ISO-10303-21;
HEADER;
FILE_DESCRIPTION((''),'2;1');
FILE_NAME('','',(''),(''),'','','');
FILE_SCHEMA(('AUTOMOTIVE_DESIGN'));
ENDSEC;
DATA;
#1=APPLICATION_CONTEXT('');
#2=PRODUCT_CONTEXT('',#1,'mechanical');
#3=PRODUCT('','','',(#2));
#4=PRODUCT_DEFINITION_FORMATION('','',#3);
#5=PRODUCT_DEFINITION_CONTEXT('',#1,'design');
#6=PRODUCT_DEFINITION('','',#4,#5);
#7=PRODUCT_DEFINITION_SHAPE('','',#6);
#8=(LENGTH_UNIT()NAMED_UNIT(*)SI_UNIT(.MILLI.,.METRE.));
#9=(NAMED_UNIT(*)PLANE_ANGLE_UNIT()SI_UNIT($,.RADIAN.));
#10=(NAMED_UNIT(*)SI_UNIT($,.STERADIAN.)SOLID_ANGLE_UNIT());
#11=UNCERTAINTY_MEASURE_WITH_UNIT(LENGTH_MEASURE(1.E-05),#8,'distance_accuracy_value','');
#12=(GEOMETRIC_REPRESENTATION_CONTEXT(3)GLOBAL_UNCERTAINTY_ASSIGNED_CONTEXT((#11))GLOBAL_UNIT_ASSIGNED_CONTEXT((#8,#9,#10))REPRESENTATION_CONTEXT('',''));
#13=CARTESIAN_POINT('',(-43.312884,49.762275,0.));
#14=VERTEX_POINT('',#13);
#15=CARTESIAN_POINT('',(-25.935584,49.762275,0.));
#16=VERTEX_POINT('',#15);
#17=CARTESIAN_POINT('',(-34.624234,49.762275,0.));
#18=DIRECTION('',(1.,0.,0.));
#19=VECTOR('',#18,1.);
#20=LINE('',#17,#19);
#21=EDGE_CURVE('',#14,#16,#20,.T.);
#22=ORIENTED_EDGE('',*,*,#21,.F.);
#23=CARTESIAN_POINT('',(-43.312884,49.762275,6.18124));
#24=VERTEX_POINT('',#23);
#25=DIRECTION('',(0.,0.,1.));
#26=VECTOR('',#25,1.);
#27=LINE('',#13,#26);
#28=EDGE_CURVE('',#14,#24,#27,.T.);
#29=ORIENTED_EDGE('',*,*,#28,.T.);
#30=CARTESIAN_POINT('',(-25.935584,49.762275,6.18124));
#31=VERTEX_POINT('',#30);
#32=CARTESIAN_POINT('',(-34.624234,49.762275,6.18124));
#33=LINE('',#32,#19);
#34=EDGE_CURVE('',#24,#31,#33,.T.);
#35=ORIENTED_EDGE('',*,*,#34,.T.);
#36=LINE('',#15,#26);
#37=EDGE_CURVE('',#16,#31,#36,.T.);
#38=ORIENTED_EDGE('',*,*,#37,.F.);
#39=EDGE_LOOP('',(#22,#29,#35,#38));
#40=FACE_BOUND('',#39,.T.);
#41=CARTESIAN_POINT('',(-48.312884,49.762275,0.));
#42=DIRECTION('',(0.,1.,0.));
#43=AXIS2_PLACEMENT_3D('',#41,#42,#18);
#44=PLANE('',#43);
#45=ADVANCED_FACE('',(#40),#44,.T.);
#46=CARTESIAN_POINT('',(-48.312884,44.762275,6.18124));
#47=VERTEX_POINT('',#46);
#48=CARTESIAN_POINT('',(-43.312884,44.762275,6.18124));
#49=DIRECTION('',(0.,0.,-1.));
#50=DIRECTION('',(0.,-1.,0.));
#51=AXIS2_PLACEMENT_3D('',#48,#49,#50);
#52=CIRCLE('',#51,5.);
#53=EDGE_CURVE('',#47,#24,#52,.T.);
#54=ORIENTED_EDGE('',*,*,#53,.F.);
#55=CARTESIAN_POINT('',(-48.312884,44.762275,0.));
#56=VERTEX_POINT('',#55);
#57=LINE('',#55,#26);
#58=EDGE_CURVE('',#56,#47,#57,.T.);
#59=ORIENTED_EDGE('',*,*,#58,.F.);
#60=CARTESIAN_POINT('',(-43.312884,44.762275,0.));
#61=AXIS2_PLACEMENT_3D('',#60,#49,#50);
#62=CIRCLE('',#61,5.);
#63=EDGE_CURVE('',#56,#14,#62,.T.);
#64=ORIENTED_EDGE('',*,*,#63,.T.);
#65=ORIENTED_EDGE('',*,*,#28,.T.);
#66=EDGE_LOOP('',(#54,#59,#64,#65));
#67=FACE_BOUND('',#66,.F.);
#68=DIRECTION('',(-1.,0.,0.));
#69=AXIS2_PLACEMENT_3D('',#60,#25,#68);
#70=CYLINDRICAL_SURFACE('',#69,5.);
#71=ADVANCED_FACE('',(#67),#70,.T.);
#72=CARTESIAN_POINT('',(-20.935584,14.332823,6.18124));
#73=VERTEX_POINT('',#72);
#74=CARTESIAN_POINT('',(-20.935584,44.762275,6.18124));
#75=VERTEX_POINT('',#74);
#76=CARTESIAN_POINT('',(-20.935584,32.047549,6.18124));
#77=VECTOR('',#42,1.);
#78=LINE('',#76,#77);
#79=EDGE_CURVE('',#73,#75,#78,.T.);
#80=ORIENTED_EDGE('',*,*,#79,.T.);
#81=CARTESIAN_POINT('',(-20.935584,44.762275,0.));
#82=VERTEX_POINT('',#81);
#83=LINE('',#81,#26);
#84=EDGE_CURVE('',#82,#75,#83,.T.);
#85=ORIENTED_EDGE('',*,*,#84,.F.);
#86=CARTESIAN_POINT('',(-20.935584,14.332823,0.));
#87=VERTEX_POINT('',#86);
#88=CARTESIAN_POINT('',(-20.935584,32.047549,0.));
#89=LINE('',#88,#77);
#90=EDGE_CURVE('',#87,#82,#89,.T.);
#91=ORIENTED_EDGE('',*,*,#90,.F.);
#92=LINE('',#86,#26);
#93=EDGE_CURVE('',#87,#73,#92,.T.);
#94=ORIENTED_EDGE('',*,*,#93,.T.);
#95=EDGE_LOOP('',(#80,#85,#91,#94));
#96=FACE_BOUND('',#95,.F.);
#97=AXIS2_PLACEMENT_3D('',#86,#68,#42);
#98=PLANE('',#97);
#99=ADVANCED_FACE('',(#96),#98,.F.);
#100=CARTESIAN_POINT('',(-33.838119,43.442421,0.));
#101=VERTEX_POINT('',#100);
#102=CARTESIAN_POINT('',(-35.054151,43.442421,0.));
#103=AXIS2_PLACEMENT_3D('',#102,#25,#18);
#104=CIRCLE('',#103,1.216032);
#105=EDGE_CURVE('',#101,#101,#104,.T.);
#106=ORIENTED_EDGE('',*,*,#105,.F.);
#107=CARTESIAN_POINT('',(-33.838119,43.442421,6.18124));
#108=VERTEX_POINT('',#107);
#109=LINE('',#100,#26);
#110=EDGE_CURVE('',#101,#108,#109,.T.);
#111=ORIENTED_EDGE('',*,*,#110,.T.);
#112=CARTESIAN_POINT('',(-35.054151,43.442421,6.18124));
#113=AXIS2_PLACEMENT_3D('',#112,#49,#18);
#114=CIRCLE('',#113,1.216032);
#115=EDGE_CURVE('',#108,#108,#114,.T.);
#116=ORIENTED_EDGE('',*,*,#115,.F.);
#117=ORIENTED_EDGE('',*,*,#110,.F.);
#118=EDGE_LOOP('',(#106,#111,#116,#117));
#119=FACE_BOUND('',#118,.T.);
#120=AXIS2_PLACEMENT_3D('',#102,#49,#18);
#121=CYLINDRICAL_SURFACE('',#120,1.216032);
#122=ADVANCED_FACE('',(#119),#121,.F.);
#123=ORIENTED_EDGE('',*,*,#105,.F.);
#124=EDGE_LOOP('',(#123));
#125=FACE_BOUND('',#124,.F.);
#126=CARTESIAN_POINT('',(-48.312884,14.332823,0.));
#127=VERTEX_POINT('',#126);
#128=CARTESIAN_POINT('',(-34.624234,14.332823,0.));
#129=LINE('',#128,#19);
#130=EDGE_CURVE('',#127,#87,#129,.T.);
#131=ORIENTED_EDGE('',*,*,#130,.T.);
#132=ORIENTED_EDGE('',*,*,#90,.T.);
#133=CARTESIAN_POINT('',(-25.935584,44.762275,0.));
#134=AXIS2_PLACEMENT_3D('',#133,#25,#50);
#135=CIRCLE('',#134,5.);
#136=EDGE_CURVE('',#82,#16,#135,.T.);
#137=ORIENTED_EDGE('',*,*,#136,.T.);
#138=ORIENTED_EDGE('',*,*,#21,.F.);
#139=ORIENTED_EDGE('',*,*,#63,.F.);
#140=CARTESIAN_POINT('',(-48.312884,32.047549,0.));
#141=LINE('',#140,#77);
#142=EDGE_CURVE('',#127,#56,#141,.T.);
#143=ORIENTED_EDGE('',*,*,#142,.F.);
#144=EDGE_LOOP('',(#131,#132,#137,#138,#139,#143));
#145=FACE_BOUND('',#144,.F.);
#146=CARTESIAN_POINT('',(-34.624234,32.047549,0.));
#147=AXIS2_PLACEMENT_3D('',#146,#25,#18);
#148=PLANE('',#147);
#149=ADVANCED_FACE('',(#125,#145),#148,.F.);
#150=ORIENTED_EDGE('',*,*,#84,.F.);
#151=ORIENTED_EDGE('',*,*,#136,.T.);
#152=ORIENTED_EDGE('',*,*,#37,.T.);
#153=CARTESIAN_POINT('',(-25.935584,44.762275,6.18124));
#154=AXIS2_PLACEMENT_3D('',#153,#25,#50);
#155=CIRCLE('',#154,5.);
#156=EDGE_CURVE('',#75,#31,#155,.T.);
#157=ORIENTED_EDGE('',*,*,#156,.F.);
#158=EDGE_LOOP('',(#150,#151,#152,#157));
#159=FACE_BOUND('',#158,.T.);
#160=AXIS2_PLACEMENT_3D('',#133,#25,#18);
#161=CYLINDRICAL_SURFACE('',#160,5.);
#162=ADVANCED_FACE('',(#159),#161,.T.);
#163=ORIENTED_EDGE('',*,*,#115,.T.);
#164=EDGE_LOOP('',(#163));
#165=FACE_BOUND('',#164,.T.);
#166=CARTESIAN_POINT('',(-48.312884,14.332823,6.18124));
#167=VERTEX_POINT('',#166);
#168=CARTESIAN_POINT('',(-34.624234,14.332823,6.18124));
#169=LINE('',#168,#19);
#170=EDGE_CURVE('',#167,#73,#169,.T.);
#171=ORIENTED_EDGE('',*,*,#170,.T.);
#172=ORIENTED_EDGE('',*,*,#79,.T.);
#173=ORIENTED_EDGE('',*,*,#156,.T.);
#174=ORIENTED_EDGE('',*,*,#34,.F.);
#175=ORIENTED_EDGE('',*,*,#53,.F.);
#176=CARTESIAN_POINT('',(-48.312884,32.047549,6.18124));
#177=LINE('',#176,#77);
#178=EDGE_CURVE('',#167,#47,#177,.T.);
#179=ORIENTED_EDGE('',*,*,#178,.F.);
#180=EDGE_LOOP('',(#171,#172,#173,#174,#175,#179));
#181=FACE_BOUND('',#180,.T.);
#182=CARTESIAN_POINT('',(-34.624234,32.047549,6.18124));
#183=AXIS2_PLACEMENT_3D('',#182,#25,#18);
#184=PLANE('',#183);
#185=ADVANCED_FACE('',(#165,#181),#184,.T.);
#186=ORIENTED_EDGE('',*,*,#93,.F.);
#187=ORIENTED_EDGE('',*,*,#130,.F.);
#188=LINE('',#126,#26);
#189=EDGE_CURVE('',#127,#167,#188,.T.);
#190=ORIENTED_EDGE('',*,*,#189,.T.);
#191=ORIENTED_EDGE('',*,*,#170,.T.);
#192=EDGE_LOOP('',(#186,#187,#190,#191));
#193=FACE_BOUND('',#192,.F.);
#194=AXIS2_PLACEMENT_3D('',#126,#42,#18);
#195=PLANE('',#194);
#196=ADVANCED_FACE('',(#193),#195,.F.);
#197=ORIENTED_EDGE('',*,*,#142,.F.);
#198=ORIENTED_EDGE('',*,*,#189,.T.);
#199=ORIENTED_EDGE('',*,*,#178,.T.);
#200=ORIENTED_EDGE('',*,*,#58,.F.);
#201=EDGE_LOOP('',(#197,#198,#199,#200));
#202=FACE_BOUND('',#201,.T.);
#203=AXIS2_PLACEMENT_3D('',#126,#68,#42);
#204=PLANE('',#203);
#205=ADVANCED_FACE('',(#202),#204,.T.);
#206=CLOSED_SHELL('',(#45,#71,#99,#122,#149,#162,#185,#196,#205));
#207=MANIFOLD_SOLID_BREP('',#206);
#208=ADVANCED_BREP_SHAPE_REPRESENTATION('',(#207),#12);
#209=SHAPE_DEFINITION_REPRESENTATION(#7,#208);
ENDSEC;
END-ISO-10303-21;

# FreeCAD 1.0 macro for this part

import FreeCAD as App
import Part
import Sketcher
Q = App.Units.Quantity


def edges_at(feature, points):
    """Names of the edges that pass closest to the given points."""
    edges = feature.Shape.Edges
    near = lambda p: min(range(len(edges)), key=lambda i: edges[i].distToShape(Part.Vertex(*p))[0])
    return sorted({f"Edge{near(p) + 1}" for p in points})

doc = App.newDocument("Part")
body = doc.addObject("PartDesign::Body", "Body")

sketch1 = body.newObject("Sketcher::SketchObject", "Sketch")
sketch1.AttachmentSupport = (doc.getObject("XY_Plane"), [""])
sketch1.MapMode = "FlatFace"
sketch1.addGeometry([
    Part.LineSegment(App.Vector(-48, 50, 0), App.Vector(-48, 14, 0)),
    Part.LineSegment(App.Vector(-48, 14, 0), App.Vector(-21, 14, 0)),
    Part.LineSegment(App.Vector(-21, 14, 0), App.Vector(-21, 50, 0)),
    Part.LineSegment(App.Vector(-21, 50, 0), App.Vector(-48, 50, 0)),
], False)
sketch1.addConstraint([
    Sketcher.Constraint("Coincident", 0, 2, 1, 1),
    Sketcher.Constraint("Coincident", 1, 2, 2, 1),
    Sketcher.Constraint("Coincident", 2, 2, 3, 1),
    Sketcher.Constraint("Coincident", 3, 2, 0, 1),
    Sketcher.Constraint("Vertical", 0),
    Sketcher.Constraint("Horizontal", 1),
    Sketcher.Constraint("Vertical", 2),
    Sketcher.Constraint("Horizontal", 3),
    Sketcher.Constraint("DistanceX", 1, 1, 1, 2, Q("27.3773 mm")),
    Sketcher.Constraint("DistanceY", 0, 2, 0, 1, Q("35.429452 mm")),
    Sketcher.Constraint("DistanceX", 0, 2, -1, 1, Q("48.312884 mm")),
    Sketcher.Constraint("DistanceY", -1, 1, 0, 2, Q("14.332823 mm")),
])
pad1 = body.newObject("PartDesign::Pad", "Pad")
pad1.Profile = sketch1
pad1.Length = 6.18124
doc.recompute()

fillet = body.newObject("PartDesign::Fillet", "Fillet")
fillet.Base = (pad1, edges_at(pad1, [(-20.936, 49.762, 3.091), (-48.313, 49.762, 3.091)]))
fillet.Radius = 5

sketch2 = body.newObject("Sketcher::SketchObject", "Sketch001")
sketch2.AttachmentSupport = (doc.getObject("XY_Plane"), [""])
sketch2.MapMode = "FlatFace"
sketch2.addGeometry(Part.Circle(App.Vector(-35.1, 43.4, 0), App.Vector(0, 0, 1), 1.2), False)
sketch2.addConstraint([
    Sketcher.Constraint("Diameter", 0, Q("2.432064 mm")),
    Sketcher.Constraint("DistanceX", 0, 3, -1, 1, Q("35.054151 mm")),
    Sketcher.Constraint("DistanceY", -1, 1, 0, 3, Q("43.442421 mm")),
])
pocket1 = body.newObject("PartDesign::Pocket", "Pocket")
pocket1.Profile = sketch2
pocket1.Length = 25
pocket1.Reversed = True

doc.recompute()
